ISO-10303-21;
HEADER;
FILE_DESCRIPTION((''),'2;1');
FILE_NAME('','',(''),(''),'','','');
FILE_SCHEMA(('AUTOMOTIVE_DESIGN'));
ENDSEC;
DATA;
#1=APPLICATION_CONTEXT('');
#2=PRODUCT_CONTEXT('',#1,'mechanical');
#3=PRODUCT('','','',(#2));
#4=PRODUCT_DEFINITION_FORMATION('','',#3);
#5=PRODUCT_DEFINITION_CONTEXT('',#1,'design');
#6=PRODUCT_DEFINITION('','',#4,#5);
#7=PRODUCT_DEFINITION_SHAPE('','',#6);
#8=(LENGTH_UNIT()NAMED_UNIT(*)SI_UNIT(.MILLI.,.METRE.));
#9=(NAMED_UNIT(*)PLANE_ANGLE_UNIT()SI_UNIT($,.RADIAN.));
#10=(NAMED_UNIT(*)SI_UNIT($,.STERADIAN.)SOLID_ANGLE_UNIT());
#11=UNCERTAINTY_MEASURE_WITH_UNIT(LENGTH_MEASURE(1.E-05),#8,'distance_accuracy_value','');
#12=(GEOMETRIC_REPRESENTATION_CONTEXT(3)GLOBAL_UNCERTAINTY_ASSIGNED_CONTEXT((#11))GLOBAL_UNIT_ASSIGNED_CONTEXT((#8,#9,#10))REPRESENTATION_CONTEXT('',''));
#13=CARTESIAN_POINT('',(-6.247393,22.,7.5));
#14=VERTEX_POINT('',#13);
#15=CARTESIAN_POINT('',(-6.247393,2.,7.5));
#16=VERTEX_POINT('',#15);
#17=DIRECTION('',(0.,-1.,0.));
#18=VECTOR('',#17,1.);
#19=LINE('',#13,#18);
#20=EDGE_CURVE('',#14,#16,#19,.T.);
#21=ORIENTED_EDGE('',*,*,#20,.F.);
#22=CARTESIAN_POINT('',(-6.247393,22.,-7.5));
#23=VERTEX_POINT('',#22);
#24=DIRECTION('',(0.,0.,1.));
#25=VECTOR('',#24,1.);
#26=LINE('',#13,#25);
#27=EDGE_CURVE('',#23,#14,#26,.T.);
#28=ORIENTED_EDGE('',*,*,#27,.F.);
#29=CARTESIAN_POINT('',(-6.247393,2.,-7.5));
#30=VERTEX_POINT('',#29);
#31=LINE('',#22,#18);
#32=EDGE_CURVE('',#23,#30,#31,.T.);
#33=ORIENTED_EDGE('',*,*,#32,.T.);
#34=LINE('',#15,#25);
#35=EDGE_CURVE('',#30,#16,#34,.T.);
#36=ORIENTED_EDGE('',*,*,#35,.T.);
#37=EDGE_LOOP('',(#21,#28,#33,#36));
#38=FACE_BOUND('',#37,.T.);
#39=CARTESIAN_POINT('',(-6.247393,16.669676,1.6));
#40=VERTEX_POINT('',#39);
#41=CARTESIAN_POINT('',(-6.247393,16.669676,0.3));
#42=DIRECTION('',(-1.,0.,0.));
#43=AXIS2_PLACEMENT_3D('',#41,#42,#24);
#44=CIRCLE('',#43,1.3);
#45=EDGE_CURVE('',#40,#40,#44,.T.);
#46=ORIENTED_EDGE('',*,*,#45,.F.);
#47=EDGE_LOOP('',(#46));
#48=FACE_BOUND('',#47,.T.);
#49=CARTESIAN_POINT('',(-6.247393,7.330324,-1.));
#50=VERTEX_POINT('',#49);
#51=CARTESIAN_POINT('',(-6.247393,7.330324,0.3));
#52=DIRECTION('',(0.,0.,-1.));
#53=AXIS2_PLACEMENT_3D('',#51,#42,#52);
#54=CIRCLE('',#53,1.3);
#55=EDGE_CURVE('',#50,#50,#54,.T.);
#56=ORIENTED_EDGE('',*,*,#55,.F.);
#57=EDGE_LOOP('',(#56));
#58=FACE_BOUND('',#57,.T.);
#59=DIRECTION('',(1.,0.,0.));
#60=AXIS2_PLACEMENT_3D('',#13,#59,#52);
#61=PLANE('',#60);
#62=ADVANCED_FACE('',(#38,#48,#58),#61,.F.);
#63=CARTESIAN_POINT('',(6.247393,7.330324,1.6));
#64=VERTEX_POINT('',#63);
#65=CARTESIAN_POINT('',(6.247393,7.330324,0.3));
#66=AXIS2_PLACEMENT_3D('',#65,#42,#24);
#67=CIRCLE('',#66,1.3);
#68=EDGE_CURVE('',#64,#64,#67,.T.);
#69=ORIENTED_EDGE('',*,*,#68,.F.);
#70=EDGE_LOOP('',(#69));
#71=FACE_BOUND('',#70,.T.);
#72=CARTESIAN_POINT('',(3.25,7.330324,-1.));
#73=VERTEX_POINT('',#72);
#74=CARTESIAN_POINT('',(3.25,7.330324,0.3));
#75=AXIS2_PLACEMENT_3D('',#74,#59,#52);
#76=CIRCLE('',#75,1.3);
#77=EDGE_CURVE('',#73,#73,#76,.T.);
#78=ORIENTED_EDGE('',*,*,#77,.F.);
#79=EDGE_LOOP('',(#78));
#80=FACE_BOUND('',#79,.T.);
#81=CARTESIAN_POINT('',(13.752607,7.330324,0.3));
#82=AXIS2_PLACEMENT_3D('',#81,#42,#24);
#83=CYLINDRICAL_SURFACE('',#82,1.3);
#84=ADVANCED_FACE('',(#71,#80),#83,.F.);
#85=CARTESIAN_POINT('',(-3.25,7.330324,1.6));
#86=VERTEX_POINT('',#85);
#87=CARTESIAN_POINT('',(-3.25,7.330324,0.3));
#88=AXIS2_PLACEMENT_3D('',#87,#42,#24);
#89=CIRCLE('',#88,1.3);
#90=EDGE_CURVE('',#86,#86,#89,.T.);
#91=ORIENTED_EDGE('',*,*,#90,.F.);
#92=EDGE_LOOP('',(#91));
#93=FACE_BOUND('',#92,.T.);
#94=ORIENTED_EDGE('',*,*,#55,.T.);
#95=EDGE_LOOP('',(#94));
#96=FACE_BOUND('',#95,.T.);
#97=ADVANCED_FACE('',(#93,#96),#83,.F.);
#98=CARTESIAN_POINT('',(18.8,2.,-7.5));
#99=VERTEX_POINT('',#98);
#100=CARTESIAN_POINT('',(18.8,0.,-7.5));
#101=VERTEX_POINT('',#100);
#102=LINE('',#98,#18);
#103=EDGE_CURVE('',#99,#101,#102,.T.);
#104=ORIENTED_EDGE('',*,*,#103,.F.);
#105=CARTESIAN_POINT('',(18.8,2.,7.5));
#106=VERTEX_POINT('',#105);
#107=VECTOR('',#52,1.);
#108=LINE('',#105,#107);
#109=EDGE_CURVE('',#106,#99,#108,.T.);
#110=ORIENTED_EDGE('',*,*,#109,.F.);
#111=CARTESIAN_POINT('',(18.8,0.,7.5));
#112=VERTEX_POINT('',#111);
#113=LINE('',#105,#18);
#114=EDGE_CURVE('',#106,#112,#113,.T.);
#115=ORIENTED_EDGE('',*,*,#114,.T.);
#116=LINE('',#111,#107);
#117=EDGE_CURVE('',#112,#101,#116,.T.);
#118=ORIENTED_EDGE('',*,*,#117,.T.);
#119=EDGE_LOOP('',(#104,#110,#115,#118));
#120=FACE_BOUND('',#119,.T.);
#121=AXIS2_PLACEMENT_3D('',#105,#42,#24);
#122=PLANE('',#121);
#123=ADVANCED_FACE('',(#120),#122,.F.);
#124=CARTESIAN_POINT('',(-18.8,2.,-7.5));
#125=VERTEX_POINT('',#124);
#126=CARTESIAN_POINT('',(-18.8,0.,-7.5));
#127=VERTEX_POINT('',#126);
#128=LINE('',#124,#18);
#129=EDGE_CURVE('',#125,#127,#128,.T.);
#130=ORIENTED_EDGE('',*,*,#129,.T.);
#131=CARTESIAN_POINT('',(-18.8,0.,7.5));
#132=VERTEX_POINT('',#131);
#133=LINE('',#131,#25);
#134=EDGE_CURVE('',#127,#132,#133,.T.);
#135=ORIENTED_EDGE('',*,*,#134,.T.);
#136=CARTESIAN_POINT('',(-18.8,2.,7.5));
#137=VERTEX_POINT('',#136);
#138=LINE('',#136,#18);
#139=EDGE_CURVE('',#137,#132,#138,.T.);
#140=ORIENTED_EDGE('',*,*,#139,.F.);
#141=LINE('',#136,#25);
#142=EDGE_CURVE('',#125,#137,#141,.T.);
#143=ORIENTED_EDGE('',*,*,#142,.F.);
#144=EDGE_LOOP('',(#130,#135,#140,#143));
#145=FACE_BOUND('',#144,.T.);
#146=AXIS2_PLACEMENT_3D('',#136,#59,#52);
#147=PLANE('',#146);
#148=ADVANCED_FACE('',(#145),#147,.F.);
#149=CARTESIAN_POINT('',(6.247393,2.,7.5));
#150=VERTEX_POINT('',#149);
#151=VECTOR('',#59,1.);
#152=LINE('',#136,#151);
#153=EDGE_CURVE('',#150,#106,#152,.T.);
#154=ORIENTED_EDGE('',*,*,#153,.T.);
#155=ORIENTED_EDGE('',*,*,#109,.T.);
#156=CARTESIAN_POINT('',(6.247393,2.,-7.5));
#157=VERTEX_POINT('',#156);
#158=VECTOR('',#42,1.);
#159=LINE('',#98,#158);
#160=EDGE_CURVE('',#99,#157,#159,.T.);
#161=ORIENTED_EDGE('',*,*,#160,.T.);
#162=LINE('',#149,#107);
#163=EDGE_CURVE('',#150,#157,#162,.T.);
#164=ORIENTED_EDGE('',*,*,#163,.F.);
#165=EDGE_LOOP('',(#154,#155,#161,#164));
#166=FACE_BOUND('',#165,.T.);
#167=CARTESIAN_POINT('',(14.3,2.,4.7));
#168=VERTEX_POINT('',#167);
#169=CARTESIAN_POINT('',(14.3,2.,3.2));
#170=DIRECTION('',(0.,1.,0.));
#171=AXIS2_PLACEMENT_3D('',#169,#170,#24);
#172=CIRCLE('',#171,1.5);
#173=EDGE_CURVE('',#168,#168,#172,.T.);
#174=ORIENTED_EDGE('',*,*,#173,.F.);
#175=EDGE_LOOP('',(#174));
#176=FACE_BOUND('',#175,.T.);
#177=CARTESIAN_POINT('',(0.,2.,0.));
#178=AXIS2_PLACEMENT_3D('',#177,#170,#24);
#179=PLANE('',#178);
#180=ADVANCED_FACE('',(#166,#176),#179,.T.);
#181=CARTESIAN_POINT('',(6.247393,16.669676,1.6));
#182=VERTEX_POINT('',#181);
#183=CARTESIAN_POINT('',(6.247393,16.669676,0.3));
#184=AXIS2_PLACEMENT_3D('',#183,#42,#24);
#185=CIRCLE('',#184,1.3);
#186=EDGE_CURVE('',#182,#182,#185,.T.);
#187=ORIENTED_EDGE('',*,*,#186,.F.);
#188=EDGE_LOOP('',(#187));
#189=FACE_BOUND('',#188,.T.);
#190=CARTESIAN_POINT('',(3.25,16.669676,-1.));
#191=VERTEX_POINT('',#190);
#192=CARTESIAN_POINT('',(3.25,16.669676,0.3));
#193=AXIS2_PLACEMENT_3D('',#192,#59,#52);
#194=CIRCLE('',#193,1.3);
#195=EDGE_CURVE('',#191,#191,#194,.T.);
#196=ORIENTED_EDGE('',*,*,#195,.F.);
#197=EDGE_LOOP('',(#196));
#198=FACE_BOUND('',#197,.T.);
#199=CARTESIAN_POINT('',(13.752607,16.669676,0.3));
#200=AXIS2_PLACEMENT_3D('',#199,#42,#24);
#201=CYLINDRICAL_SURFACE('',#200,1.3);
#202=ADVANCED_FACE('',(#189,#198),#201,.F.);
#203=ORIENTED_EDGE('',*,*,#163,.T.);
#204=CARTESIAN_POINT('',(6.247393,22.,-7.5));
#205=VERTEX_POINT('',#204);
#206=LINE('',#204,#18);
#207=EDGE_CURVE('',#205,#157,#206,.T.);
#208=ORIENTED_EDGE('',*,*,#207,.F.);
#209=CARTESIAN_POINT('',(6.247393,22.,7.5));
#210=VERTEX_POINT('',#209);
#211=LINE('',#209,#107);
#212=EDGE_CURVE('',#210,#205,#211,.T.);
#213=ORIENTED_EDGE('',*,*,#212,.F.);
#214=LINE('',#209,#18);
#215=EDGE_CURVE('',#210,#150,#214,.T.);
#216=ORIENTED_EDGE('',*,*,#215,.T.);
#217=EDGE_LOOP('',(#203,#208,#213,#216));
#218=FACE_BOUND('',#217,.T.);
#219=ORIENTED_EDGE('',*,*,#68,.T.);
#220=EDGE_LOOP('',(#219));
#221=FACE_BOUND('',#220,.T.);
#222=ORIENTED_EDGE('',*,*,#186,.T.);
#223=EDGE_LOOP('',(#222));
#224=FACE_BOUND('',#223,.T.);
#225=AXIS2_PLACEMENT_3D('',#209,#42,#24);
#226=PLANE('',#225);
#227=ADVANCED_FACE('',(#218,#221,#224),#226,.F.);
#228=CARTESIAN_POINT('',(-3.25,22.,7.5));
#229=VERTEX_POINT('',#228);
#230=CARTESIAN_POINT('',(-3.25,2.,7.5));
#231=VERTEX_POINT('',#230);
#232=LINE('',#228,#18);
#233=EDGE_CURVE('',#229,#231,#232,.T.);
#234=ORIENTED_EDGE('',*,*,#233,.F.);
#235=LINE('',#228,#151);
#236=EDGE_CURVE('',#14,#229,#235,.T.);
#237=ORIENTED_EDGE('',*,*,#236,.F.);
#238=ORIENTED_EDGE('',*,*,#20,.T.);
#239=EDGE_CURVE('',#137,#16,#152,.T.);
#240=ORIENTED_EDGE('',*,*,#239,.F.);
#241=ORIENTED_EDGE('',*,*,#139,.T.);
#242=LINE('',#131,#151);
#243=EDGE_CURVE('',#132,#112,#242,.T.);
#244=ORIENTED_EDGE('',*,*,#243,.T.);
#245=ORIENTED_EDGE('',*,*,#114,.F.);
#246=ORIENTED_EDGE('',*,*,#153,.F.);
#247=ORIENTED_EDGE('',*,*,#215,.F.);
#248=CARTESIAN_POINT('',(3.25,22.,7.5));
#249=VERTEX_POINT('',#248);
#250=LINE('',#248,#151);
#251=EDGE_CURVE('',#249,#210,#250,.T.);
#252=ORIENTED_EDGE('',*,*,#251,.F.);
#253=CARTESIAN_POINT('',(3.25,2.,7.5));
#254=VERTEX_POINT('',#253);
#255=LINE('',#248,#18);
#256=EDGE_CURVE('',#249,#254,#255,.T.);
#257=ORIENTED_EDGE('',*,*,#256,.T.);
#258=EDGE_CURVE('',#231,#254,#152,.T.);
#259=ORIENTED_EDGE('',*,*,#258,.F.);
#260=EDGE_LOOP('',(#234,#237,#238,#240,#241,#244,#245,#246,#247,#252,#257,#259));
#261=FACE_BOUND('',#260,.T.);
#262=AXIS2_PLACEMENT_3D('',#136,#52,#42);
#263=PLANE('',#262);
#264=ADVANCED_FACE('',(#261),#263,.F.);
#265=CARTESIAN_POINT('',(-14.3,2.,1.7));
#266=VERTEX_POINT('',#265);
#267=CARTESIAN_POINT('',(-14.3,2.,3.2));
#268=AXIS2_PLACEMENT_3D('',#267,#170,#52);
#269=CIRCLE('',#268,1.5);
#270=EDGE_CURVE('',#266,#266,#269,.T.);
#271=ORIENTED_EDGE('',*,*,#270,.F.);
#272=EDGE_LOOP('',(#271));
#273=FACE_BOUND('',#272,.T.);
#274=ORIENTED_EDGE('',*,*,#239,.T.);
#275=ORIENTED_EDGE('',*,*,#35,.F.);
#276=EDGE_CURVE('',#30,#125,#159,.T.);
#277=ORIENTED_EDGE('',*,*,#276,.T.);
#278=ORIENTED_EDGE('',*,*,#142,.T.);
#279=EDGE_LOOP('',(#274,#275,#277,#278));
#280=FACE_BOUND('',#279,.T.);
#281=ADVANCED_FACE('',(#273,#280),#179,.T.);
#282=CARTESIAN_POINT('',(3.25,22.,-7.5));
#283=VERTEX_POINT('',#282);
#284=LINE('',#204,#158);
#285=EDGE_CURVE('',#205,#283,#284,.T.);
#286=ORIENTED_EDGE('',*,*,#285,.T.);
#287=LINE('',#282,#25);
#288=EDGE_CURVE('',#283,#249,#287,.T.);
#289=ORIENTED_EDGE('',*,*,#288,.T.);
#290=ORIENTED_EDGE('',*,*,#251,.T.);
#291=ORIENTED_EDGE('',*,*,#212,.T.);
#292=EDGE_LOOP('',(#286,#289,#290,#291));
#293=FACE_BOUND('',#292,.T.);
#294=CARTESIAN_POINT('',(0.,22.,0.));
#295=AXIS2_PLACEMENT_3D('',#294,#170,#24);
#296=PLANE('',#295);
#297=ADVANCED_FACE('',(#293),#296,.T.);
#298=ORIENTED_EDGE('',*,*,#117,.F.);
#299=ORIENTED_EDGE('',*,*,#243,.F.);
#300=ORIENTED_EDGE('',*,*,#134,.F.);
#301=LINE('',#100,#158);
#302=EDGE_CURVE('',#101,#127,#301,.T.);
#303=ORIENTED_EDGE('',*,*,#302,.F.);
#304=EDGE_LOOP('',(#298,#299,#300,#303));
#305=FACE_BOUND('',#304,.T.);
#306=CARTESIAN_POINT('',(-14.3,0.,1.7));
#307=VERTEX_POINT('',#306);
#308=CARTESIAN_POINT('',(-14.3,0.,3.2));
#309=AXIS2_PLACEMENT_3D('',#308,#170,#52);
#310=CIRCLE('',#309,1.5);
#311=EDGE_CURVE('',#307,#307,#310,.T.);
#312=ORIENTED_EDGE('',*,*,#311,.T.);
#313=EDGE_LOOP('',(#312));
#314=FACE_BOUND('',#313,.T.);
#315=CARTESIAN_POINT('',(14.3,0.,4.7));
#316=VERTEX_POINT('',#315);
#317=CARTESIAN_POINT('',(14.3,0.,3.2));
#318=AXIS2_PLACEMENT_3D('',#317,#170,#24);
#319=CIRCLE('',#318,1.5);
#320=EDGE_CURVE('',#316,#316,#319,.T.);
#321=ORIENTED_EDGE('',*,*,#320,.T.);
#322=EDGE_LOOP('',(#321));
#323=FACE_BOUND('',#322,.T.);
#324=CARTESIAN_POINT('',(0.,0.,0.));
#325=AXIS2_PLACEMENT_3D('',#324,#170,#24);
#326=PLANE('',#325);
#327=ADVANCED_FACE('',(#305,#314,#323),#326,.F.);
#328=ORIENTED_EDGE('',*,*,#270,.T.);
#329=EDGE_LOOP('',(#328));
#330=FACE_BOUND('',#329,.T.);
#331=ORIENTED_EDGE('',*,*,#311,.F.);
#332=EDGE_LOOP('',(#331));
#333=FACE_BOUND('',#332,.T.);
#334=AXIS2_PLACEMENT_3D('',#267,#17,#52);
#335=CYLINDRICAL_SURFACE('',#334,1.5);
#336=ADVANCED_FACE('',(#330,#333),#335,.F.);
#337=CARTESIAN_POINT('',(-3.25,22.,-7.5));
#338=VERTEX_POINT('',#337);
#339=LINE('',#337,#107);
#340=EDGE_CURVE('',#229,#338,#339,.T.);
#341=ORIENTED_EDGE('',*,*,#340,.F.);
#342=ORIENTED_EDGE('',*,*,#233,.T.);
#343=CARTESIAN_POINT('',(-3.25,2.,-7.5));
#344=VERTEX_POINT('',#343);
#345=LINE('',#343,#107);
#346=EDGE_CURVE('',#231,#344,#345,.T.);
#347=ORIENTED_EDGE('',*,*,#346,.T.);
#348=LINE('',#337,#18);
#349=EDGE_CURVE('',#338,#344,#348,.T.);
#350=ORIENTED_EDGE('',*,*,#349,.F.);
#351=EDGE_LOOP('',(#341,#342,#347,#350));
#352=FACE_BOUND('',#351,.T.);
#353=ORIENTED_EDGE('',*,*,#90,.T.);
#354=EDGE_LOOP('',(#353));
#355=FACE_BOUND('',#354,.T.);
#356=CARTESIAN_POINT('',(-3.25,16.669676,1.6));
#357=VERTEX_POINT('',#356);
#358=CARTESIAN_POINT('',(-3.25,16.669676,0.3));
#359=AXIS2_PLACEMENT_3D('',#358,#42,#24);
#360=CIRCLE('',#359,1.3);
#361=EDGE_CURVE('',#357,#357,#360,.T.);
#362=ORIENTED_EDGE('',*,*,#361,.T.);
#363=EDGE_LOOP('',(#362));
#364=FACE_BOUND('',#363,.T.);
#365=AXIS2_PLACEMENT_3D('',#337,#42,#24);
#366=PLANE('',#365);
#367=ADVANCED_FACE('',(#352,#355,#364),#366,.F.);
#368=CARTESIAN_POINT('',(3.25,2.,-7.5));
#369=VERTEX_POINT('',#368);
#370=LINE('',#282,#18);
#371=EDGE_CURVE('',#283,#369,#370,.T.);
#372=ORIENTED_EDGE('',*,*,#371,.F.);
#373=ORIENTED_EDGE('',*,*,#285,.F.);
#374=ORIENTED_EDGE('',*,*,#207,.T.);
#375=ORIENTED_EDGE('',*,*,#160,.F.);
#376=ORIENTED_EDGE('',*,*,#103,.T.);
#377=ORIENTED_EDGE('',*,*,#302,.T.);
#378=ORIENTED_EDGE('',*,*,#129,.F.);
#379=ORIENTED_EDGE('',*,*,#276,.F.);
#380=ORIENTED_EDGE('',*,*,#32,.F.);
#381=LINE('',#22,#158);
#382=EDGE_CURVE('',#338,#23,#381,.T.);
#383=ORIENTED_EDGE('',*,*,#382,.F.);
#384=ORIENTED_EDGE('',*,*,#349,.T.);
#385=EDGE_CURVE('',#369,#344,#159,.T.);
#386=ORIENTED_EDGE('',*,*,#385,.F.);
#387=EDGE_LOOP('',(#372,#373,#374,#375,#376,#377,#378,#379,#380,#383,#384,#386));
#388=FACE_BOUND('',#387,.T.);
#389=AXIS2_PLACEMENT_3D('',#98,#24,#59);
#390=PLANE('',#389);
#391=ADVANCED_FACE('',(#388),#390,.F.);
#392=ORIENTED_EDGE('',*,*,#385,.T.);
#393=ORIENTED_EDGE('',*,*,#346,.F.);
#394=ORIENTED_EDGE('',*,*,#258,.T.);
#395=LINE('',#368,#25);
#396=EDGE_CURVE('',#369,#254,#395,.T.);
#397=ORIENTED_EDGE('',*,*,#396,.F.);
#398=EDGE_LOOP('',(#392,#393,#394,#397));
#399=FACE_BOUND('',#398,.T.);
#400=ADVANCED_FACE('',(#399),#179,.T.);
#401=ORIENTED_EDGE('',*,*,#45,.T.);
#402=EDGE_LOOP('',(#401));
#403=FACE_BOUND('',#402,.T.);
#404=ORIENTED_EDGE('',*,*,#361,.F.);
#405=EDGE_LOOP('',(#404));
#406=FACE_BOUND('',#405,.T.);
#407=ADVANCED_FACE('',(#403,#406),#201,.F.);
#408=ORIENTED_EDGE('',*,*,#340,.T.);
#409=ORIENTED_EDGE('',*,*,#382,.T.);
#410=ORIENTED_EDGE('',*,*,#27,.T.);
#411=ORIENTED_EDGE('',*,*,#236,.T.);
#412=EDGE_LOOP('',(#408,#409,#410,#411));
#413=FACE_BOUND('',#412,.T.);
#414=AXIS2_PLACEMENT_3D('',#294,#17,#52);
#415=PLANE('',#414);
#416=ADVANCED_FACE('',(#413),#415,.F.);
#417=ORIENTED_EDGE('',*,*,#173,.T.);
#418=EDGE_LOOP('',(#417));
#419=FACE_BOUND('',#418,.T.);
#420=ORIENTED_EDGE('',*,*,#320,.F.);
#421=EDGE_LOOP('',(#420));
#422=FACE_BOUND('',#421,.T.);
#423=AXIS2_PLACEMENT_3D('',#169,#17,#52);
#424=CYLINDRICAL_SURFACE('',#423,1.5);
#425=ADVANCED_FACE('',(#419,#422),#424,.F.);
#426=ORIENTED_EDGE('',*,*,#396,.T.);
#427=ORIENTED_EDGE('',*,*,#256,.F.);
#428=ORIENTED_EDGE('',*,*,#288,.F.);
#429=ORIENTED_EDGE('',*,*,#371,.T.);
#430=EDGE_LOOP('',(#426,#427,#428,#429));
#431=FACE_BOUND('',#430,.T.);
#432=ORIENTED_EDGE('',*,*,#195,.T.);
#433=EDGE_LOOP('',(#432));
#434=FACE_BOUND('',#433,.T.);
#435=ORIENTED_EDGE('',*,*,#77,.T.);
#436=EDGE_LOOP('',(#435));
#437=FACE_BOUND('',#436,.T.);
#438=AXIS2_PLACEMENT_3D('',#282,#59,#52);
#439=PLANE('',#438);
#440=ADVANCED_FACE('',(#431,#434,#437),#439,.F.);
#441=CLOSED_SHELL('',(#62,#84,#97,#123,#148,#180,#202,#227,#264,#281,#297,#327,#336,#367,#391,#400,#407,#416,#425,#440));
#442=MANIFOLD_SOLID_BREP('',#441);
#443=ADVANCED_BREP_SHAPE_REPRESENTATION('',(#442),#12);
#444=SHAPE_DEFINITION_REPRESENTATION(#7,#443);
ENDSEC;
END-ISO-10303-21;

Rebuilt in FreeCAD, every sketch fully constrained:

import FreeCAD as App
import Part
import Sketcher
from FreeCAD import Vector
Q = App.Units.Quantity

doc = App.newDocument("Part")
body = doc.addObject("PartDesign::Body", "Body")

# Sketch on XZ plane
sketch1 = body.newObject("Sketcher::SketchObject", "Sketch")
sketch1.AttachmentSupport = (doc.getObject("XZ_Plane"), [""])
sketch1.MapMode = "FlatFace"
sketch1.addGeometry(Part.LineSegment(Vector(-18.8, -7.5, 0), Vector(-18.8, 7.5, 0)), False)
sketch1.addGeometry(Part.LineSegment(Vector(-18.8, 7.5, 0), Vector(18.8, 7.5, 0)), False)
sketch1.addGeometry(Part.LineSegment(Vector(18.8, 7.5, 0), Vector(18.8, -7.5, 0)), False)
sketch1.addGeometry(Part.LineSegment(Vector(18.8, -7.5, 0), Vector(-18.8, -7.5, 0)), False)
sketch1.addGeometry(Part.Circle(Vector(-14.3, 3.2, 0), Vector(0, 0, 1), 1.5), False)
sketch1.addGeometry(Part.Circle(Vector(14.3, 3.2, 0), Vector(0, 0, 1), 1.5), False)
sketch1.addConstraint(Sketcher.Constraint("Coincident", 0, 2, 1, 1))
sketch1.addConstraint(Sketcher.Constraint("Coincident", 1, 2, 2, 1))
sketch1.addConstraint(Sketcher.Constraint("Coincident", 2, 2, 3, 1))
sketch1.addConstraint(Sketcher.Constraint("Coincident", 3, 2, 0, 1))
sketch1.addConstraint(Sketcher.Constraint("Vertical", 0))
sketch1.addConstraint(Sketcher.Constraint("Horizontal", 1))
sketch1.addConstraint(Sketcher.Constraint("Vertical", 2))
sketch1.addConstraint(Sketcher.Constraint("Horizontal", 3))
sketch1.addConstraint(Sketcher.Constraint("Equal", 4, 5))
sketch1.addConstraint(Sketcher.Constraint("Symmetric", 0, 2, 2, 2, -1, 1))
sketch1.addConstraint(Sketcher.Constraint("Symmetric", 4, 3, 5, 3, -2))
sketch1.addConstraint(Sketcher.Constraint("Diameter", 4, Q("3 mm")))
sketch1.addConstraint(Sketcher.Constraint("DistanceY", 0, 1, 0, 2, Q("15 mm")))
sketch1.addConstraint(Sketcher.Constraint("DistanceX", 1, 1, 1, 2, Q("37.6 mm")))
sketch1.addConstraint(Sketcher.Constraint("DistanceX", 4, 3, -1, 1, Q("14.3 mm")))
sketch1.addConstraint(Sketcher.Constraint("DistanceY", -1, 1, 4, 3, Q("3.2 mm")))
pad1 = body.newObject("PartDesign::Pad", "Pad")
pad1.Profile = sketch1
pad1.Length = 2
pad1.Reversed = True

# Sketch on XZ plane
sketch2 = body.newObject("Sketcher::SketchObject", "Sketch001")
sketch2.AttachmentSupport = (doc.getObject("XZ_Plane"), [""])
sketch2.MapMode = "FlatFace"
sketch2.AttachmentOffset = App.Placement(Vector(0, 0, -2), App.Rotation())
sketch2.addGeometry(Part.LineSegment(Vector(-6.2, -7.5, 0), Vector(-6.2, 7.5, 0)), False)
sketch2.addGeometry(Part.LineSegment(Vector(-6.2, 7.5, 0), Vector(-3.3, 7.5, 0)), False)
sketch2.addGeometry(Part.LineSegment(Vector(-3.3, 7.5, 0), Vector(-3.3, -7.5, 0)), False)
sketch2.addGeometry(Part.LineSegment(Vector(-3.3, -7.5, 0), Vector(-6.2, -7.5, 0)), False)
sketch2.addGeometry(Part.LineSegment(Vector(3.3, -7.5, 0), Vector(3.3, 7.5, 0)), False)
sketch2.addGeometry(Part.LineSegment(Vector(3.3, 7.5, 0), Vector(6.2, 7.5, 0)), False)
sketch2.addGeometry(Part.LineSegment(Vector(6.2, 7.5, 0), Vector(6.2, -7.5, 0)), False)
sketch2.addGeometry(Part.LineSegment(Vector(6.2, -7.5, 0), Vector(3.3, -7.5, 0)), False)
sketch2.addConstraint(Sketcher.Constraint("Coincident", 0, 2, 1, 1))
sketch2.addConstraint(Sketcher.Constraint("Coincident", 1, 2, 2, 1))
sketch2.addConstraint(Sketcher.Constraint("Coincident", 2, 2, 3, 1))
sketch2.addConstraint(Sketcher.Constraint("Coincident", 3, 2, 0, 1))
sketch2.addConstraint(Sketcher.Constraint("Coincident", 4, 2, 5, 1))
sketch2.addConstraint(Sketcher.Constraint("Coincident", 5, 2, 6, 1))
sketch2.addConstraint(Sketcher.Constraint("Coincident", 6, 2, 7, 1))
sketch2.addConstraint(Sketcher.Constraint("Coincident", 7, 2, 4, 1))
sketch2.addConstraint(Sketcher.Constraint("Vertical", 0))
sketch2.addConstraint(Sketcher.Constraint("Horizontal", 1))
sketch2.addConstraint(Sketcher.Constraint("Vertical", 2))
sketch2.addConstraint(Sketcher.Constraint("Horizontal", 3))
sketch2.addConstraint(Sketcher.Constraint("Vertical", 4))
sketch2.addConstraint(Sketcher.Constraint("Horizontal", 5))
sketch2.addConstraint(Sketcher.Constraint("Vertical", 6))
sketch2.addConstraint(Sketcher.Constraint("Horizontal", 7))
sketch2.addConstraint(Sketcher.Constraint("Symmetric", 2, 2, 4, 2, -1, 1))
sketch2.addConstraint(Sketcher.Constraint("Symmetric", 0, 2, 6, 2, -1, 1))
sketch2.addConstraint(Sketcher.Constraint("Horizontal", 1, 2, 4, 2))
sketch2.addConstraint(Sketcher.Constraint("DistanceY", 0, 1, 0, 2, Q("15 mm")))
sketch2.addConstraint(Sketcher.Constraint("DistanceX", 1, 2, 4, 2, Q("6.5 mm")))
sketch2.addConstraint(Sketcher.Constraint("DistanceX", 1, 1, 1, 2, Q("2.997393 mm")))
pad2 = body.newObject("PartDesign::Pad", "Pad001")
pad2.Profile = sketch2
pad2.Length = 20
pad2.Reversed = True

# Sketch on YZ plane
sketch3 = body.newObject("Sketcher::SketchObject", "Sketch002")
sketch3.AttachmentSupport = (doc.getObject("YZ_Plane"), [""])
sketch3.MapMode = "FlatFace"
sketch3.AttachmentOffset = App.Placement(Vector(0, 0, -6.247393), App.Rotation())
sketch3.addGeometry(Part.Circle(Vector(16.7, 0.3, 0), Vector(0, 0, 1), 1.3), False)
sketch3.addGeometry(Part.Circle(Vector(7.3, 0.3, 0), Vector(0, 0, 1), 1.3), False)
sketch3.addConstraint(Sketcher.Constraint("Equal", 0, 1))
sketch3.addConstraint(Sketcher.Constraint("Horizontal", 0, 3, 1, 3))
sketch3.addConstraint(Sketcher.Constraint("Diameter", 0, Q("2.6 mm")))
sketch3.addConstraint(Sketcher.Constraint("DistanceY", -1, 1, 0, 3, Q("0.3 mm")))
sketch3.addConstraint(Sketcher.Constraint("DistanceX", -1, 1, 0, 3, Q("16.669676 mm")))
sketch3.addConstraint(Sketcher.Constraint("DistanceX", -1, 1, 1, 3, Q("7.330324 mm")))
pocket1 = body.newObject("PartDesign::Pocket", "Pocket")
pocket1.Profile = sketch3
pocket1.Length = 20
pocket1.Reversed = True

doc.recompute()
